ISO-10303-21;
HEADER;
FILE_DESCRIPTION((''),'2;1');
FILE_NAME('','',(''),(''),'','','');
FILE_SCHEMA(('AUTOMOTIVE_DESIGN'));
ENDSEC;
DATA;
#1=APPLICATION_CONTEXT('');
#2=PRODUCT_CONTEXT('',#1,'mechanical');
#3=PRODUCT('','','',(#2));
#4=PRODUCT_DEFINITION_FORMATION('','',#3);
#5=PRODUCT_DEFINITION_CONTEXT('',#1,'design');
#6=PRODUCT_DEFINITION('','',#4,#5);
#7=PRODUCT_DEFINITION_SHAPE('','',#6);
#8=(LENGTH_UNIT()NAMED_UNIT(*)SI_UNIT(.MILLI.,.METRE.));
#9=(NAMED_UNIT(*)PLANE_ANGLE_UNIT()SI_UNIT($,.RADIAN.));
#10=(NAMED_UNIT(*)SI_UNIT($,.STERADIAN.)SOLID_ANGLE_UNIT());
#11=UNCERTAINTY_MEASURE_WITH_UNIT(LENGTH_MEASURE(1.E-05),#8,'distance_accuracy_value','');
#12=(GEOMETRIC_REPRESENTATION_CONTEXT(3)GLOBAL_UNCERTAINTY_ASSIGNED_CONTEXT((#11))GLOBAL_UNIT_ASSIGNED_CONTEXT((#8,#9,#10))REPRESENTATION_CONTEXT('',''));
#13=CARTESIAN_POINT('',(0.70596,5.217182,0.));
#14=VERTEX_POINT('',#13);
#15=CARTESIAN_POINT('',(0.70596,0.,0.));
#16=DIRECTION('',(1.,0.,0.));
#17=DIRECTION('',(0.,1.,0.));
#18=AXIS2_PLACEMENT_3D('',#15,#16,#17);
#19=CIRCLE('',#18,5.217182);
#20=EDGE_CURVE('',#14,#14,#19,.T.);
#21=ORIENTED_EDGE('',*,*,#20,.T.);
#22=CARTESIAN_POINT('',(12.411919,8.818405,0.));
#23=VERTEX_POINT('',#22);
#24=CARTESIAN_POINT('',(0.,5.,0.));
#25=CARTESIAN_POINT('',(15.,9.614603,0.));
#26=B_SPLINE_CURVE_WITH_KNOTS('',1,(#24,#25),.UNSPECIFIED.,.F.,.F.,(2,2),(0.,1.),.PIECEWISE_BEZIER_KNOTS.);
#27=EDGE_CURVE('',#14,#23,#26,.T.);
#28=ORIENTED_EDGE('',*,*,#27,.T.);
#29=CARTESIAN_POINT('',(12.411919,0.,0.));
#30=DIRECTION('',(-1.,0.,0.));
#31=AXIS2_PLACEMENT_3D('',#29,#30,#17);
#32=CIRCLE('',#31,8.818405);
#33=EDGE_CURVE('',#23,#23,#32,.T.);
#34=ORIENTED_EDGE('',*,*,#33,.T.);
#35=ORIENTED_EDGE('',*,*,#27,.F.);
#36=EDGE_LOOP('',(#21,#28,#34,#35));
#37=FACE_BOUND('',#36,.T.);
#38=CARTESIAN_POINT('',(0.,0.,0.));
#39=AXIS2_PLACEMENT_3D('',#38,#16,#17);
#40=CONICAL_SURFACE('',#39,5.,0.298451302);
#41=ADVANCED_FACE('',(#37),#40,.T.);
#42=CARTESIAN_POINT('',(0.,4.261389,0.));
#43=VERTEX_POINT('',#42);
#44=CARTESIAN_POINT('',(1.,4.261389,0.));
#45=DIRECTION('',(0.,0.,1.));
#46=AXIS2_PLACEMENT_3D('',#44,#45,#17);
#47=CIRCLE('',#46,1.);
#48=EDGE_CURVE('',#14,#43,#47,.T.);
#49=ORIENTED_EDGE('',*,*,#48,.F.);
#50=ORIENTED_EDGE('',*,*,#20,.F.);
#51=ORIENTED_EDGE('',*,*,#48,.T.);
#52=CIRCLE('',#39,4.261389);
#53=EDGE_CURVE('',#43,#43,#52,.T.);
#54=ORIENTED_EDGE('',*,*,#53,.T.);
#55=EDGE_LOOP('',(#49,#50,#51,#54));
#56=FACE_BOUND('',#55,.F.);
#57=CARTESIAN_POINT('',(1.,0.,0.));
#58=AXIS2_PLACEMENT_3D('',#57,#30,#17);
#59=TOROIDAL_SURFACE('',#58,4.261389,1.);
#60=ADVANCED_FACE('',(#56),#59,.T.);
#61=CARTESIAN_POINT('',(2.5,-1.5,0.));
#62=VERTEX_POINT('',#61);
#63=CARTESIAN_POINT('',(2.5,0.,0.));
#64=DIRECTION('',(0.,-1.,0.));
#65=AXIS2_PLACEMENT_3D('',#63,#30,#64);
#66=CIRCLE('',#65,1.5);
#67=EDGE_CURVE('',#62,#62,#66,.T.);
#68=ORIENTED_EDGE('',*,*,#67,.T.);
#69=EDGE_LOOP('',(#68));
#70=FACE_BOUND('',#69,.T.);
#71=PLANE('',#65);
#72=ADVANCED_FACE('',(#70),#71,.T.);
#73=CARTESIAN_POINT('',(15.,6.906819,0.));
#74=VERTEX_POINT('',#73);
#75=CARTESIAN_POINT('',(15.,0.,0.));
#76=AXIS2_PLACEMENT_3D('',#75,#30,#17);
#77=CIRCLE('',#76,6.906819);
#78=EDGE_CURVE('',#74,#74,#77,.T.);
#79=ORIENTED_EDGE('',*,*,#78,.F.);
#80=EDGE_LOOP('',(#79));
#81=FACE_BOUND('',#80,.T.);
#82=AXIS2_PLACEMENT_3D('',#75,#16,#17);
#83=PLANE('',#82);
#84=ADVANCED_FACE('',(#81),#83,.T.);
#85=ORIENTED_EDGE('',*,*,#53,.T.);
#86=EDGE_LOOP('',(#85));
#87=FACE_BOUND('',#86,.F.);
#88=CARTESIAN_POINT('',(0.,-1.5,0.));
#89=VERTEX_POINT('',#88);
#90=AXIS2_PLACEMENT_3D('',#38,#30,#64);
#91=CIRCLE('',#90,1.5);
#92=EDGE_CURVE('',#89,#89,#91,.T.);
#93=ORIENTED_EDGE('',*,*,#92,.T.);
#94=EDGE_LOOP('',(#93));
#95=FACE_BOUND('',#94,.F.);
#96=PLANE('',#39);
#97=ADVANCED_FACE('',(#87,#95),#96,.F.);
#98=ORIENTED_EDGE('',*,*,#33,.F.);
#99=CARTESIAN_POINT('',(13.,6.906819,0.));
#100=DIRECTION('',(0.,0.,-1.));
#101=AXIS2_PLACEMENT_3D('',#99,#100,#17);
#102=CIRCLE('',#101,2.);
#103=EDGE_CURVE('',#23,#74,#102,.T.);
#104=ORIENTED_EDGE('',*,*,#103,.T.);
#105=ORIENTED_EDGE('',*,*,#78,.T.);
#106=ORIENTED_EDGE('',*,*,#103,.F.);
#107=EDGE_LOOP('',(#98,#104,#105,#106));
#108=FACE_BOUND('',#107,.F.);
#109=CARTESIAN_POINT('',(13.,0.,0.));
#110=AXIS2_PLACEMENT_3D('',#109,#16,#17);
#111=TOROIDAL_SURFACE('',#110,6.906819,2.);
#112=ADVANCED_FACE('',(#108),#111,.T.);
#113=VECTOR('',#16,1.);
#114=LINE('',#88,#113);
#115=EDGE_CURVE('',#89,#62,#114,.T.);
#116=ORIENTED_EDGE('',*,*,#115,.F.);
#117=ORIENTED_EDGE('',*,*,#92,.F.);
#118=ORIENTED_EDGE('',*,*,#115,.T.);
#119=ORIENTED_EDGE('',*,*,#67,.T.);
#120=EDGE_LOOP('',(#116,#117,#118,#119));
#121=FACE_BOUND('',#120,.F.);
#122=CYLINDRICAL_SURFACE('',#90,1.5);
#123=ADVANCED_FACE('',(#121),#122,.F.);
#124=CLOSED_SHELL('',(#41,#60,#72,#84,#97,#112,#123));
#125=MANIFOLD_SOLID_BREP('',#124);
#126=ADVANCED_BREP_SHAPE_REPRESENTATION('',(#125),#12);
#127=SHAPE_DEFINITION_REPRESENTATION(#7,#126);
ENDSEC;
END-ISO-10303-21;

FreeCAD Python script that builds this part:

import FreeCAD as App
import Part
import Sketcher
from FreeCAD import Vector


def edges_at(feature, points):
    """Names of the edges that pass closest to the given points."""
    edges = feature.Shape.Edges
    near = lambda p: min(range(len(edges)), key=lambda i: edges[i].distToShape(Part.Vertex(*p))[0])
    return sorted({f"Edge{near(p) + 1}" for p in points})

doc = App.newDocument("Part")
body = doc.addObject("PartDesign::Body", "Body")

# Sketch on YZ plane
sketch1 = body.newObject("Sketcher::SketchObject", "Sketch")
sketch1.AttachmentSupport = (doc.getObject("YZ_Plane"), [""])
sketch1.MapMode = "FlatFace"
sketch1.addGeometry(Part.Circle(Vector(0, 0, 0), Vector(0, 0, 1), 5), False)
sketch1.addConstraint([
    Sketcher.Constraint("Coincident", 0, 3, -1, 1),
    Sketcher.Constraint("Diameter", 0, 10.0),
])
pad1 = body.newObject("PartDesign::Pad", "Pad")
pad1.Profile = sketch1
pad1.Length = 15
pad1.TaperAngle = 17.1
doc.recompute()

fillet = body.newObject("PartDesign::Fillet", "Fillet")
fillet.Base = (pad1, edges_at(pad1, [(15, -9.615, 0)]))
fillet.Radius = 2
doc.recompute()

fillet2 = body.newObject("PartDesign::Fillet", "Fillet001")
fillet2.Base = (fillet, edges_at(fillet, [(0, -5, 0)]))
fillet2.Radius = 1

# Sketch on YZ plane
sketch2 = body.newObject("Sketcher::SketchObject", "Sketch001")
sketch2.AttachmentSupport = (doc.getObject("YZ_Plane"), [""])
sketch2.MapMode = "FlatFace"
sketch2.addGeometry(Part.Circle(Vector(0, 0, 0), Vector(0, 0, 1), 1.5), False)
sketch2.addConstraint([
    Sketcher.Constraint("Coincident", 0, 3, -1, 1),
    Sketcher.Constraint("Diameter", 0, 3.0),
])
pocket1 = body.newObject("PartDesign::Pocket", "Pocket")
pocket1.Profile = sketch2
pocket1.Length = 2.5
pocket1.Reversed = True

doc.recompute()
